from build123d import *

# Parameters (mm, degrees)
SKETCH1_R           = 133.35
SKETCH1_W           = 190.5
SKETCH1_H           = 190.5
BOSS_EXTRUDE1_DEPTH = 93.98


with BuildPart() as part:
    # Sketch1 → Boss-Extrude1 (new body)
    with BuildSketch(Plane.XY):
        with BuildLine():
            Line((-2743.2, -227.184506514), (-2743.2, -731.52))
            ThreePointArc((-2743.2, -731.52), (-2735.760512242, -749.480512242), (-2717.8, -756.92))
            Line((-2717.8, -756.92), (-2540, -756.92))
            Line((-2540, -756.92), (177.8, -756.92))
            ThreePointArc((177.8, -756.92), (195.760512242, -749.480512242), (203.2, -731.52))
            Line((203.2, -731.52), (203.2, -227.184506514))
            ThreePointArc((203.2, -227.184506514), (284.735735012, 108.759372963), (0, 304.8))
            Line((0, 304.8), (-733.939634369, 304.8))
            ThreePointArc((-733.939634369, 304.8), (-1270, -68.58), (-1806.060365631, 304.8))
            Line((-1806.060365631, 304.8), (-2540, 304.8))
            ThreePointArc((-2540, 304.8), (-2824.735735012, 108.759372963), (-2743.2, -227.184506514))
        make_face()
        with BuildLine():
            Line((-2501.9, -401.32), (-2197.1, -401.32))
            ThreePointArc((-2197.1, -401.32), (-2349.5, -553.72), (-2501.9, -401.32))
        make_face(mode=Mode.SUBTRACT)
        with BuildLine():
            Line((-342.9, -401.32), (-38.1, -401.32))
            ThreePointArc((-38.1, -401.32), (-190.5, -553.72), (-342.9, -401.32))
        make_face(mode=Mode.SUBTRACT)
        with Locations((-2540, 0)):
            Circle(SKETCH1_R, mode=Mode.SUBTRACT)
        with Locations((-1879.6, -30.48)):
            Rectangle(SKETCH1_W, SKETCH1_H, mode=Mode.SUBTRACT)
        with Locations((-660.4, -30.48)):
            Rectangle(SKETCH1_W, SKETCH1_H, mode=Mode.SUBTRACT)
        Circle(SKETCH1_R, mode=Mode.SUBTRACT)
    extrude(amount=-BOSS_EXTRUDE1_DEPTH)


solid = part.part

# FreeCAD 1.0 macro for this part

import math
import FreeCAD as App
import Part
import Sketcher
from FreeCAD import Vector
Q = App.Units.Quantity


def add_polygon(sketch, points):
    """Adds a closed chain of lines whose ends are joined by coincident constraints."""
    first, n = sketch.GeometryCount, len(points)
    for a, b in zip(points, points[1:] + points[:1]):
        sketch.addGeometry(Part.LineSegment(App.Vector(*a, 0), App.Vector(*b, 0)), False)
    for i in range(n):
        sketch.addConstraint(Sketcher.Constraint("Coincident", first + i, 2, first + (i + 1) % n, 1))

doc = App.newDocument("Part")
params = doc.addObject("Spreadsheet::Sheet", "Params")
for row, (alias, value) in enumerate([
    ("sketch1_radius", "1 in"),
    ("sketch1_radius2", "12 in"),
    ("sketch1_radius3", "6 in"),
    ("sketch1_diameter", "10.5 in"),
    ("sketch1_radius4", "22.5 in"),
    ("pad1_length", "3.7 in"),
], start=1):
    params.set(f"A{row}", alias)
    params.set(f"B{row}", "=" + value)
    params.setAlias(f"B{row}", alias)

body = doc.addObject("PartDesign::Body", "Body")

sketch1 = body.newObject("Sketcher::SketchObject", "Sketch")
sketch1.AttachmentSupport = (doc.getObject("XY_Plane"), [""])
sketch1.MapMode = "FlatFace"
sketch1.addGeometry(Part.LineSegment(Vector(-2743.2, -227.184507, 0), Vector(-2743.2, -731.52, 0)), False)
sketch1.addGeometry(Part.ArcOfCircle(Part.Circle(Vector(-2717.8, -731.52, 0), Vector(0, 0, 1), 25.4), math.radians(180), math.radians(270)), False)
sketch1.addGeometry(Part.LineSegment(Vector(-2717.8, -756.92, 0), Vector(177.8, -756.92, 0)), False)
sketch1.addGeometry(Part.ArcOfCircle(Part.Circle(Vector(177.8, -731.52, 0), Vector(0, 0, 1), 25.4), math.radians(-90), math.radians(0)), False)
sketch1.addGeometry(Part.LineSegment(Vector(203.2, -731.52, 0), Vector(203.2, -227.184507, 0)), False)
sketch1.addGeometry(Part.ArcOfCircle(Part.Circle(Vector(0, 0, 0), Vector(0, 0, 1), 304.8), math.radians(-48.189685), math.radians(90)), False)
sketch1.addGeometry(Part.LineSegment(Vector(0, 304.8, 0), Vector(-733.939634, 304.8, 0)), False)
sketch1.addGeometry(Part.ArcOfCircle(Part.Circle(Vector(-1270, 502.92, 0), Vector(0, 0, 1), 571.5), math.radians(-159.716431), math.radians(-20.283569)), False)
sketch1.addGeometry(Part.LineSegment(Vector(-1806.060366, 304.8, 0), Vector(-2540, 304.8, 0)), False)
sketch1.addGeometry(Part.ArcOfCircle(Part.Circle(Vector(-2540, 0, 0), Vector(0, 0, 1), 304.8), math.radians(90), math.radians(228.189685)), False)
sketch1.addGeometry(Part.ArcOfCircle(Part.Circle(Vector(-2349.5, -401.32, 0), Vector(0, 0, 1), 152.4), math.radians(180), math.radians(360)), False)
sketch1.addGeometry(Part.LineSegment(Vector(-2501.9, -401.32, 0), Vector(-2197.1, -401.32, 0)), False)
sketch1.addGeometry(Part.ArcOfCircle(Part.Circle(Vector(-190.5, -401.32, 0), Vector(0, 0, 1), 152.4), math.radians(180), math.radians(360)), False)
sketch1.addGeometry(Part.LineSegment(Vector(-342.9, -401.32, 0), Vector(-38.1, -401.32, 0)), False)
sketch1.addGeometry(Part.Circle(Vector(-2540, 0, 0), Vector(0, 0, 1), 133.35), False)
add_polygon(sketch1, [(-1784.35, -125.73), (-1974.85, -125.73), (-1974.85, 64.77), (-1784.35, 64.77)])
add_polygon(sketch1, [(-565.15, -125.73), (-755.65, -125.73), (-755.65, 64.77), (-565.15, 64.77)])
sketch1.addGeometry(Part.Circle(Vector(0, 0, 0), Vector(0, 0, 1), 133.35), False)
sketch1.addConstraint(Sketcher.Constraint("Tangent", 0, 2, 1, 1))
sketch1.addConstraint(Sketcher.Constraint("Tangent", 1, 2, 2, 1))
sketch1.addConstraint(Sketcher.Constraint("Tangent", 2, 2, 3, 1))
sketch1.addConstraint(Sketcher.Constraint("Tangent", 3, 2, 4, 1))
sketch1.addConstraint(Sketcher.Constraint("Coincident", 4, 2, 5, 1))
sketch1.addConstraint(Sketcher.Constraint("Tangent", 5, 2, 6, 1))
sketch1.addConstraint(Sketcher.Constraint("Coincident", 6, 2, 7, 2))
sketch1.addConstraint(Sketcher.Constraint("Coincident", 7, 1, 8, 1))
sketch1.addConstraint(Sketcher.Constraint("Tangent", 8, 2, 9, 1))
sketch1.addConstraint(Sketcher.Constraint("Coincident", 9, 2, 0, 1))
sketch1.addConstraint(Sketcher.Constraint("Coincident", 10, 1, 11, 1))
sketch1.addConstraint(Sketcher.Constraint("Coincident", 11, 2, 10, 2))
sketch1.addConstraint(Sketcher.Constraint("Coincident", 12, 1, 13, 1))
sketch1.addConstraint(Sketcher.Constraint("Coincident", 13, 2, 12, 2))
sketch1.addConstraint(Sketcher.Constraint("Vertical", 0))
sketch1.addConstraint(Sketcher.Constraint("Horizontal", 2))
sketch1.addConstraint(Sketcher.Constraint("Vertical", 4))
sketch1.addConstraint(Sketcher.Constraint("Horizontal", 6))
sketch1.addConstraint(Sketcher.Constraint("Horizontal", 8))
sketch1.addConstraint(Sketcher.Constraint("Horizontal", 11))
sketch1.addConstraint(Sketcher.Constraint("Horizontal", 13))
sketch1.addConstraint(Sketcher.Constraint("Horizontal", 15))
sketch1.addConstraint(Sketcher.Constraint("Vertical", 16))
sketch1.addConstraint(Sketcher.Constraint("Horizontal", 17))
sketch1.addConstraint(Sketcher.Constraint("Vertical", 18))
sketch1.addConstraint(Sketcher.Constraint("Horizontal", 19))
sketch1.addConstraint(Sketcher.Constraint("Vertical", 20))
sketch1.addConstraint(Sketcher.Constraint("Horizontal", 21))
sketch1.addConstraint(Sketcher.Constraint("Vertical", 22))
sketch1.addConstraint(Sketcher.Constraint("Coincident", 5, 3, -1, 1))
sketch1.addConstraint(Sketcher.Constraint("Coincident", 23, 3, -1, 1))
sketch1.addConstraint(Sketcher.Constraint("Coincident", 14, 3, 9, 3))
sketch1.addConstraint(Sketcher.Constraint("Equal", 1, 3))
sketch1.addConstraint(Sketcher.Constraint("Equal", 5, 9))
sketch1.addConstraint(Sketcher.Constraint("Equal", 10, 12))
sketch1.addConstraint(Sketcher.Constraint("Equal", 14, 23))
sketch1.addConstraint(Sketcher.Constraint("PointOnObject", 9, 3, -1))
sketch1.addConstraint(Sketcher.Constraint("Horizontal", 10, 3, 12, 3))
sketch1.addConstraint(Sketcher.Constraint("Horizontal", 4, 2, 9, 2))
sketch1.addConstraint(Sketcher.Constraint("Horizontal", 12, 3, 10, 1))
sketch1.addConstraint(Sketcher.Constraint("Horizontal", 11, 2, 12, 1))
sketch1.addConstraint(Sketcher.Constraint("Horizontal", 18, 2, 19, 2))
sketch1.addConstraint(Sketcher.Constraint("Horizontal", 17, 2, 20, 2))
sketch1.addConstraint(Sketcher.Constraint("Equal", 6, 8))
sketch1.addConstraint(Sketcher.Constraint("Equal", 17, 19))
sketch1.addConstraint(Sketcher.Constraint("Equal", 21, 16))
sketch1.addConstraint(Sketcher.Constraint("Radius", 1, Q("1 in")))
sketch1.addConstraint(Sketcher.Constraint("Radius", 5, Q("12 in")))
sketch1.addConstraint(Sketcher.Constraint("Radius", 10, Q("6 in")))
sketch1.addConstraint(Sketcher.Constraint("Diameter", 14, Q("10.5 in")))
sketch1.addConstraint(Sketcher.Constraint("Radius", 7, Q("22.5 in")))
sketch1.addConstraint(Sketcher.Constraint("DistanceX", 2, 1, 2, 2, Q("114 in")))
sketch1.addConstraint(Sketcher.Constraint("DistanceX", 15, 2, 15, 1, Q("7.5 in")))
sketch1.addConstraint(Sketcher.Constraint("DistanceX", 1, 3, -1, 1, Q("107 in")))
sketch1.addConstraint(Sketcher.Constraint("DistanceY", 1, 3, 10, 3, Q("13 in")))
sketch1.addConstraint(Sketcher.Constraint("DistanceX", 10, 3, 12, 3, Q("85 in")))
sketch1.addConstraint(Sketcher.Constraint("DistanceY", 1, 3, -1, 1, Q("28.8 in")))
sketch1.addConstraint(Sketcher.Constraint("DistanceY", -1, 1, 7, 3, Q("19.8 in")))
sketch1.addConstraint(Sketcher.Constraint("DistanceX", 10, 3, -1, 1, Q("92.5 in")))
sketch1.addConstraint(Sketcher.Constraint("DistanceX", 15, 2, -1, 1, Q("77.75 in")))
sketch1.addConstraint(Sketcher.Constraint("DistanceY", 15, 2, -1, 1, Q("4.95 in")))
sketch1.addConstraint(Sketcher.Constraint("DistanceX", 19, 2, -1, 1, Q("29.75 in")))
sketch1.setExpression("Constraints[54]", "Params.sketch1_radius")
sketch1.setExpression("Constraints[55]", "Params.sketch1_radius2")
sketch1.setExpression("Constraints[56]", "Params.sketch1_radius3")
sketch1.setExpression("Constraints[57]", "Params.sketch1_diameter")
sketch1.setExpression("Constraints[58]", "Params.sketch1_radius4")
pad1 = body.newObject("PartDesign::Pad", "Pad")
pad1.Profile = sketch1
pad1.setExpression("Length", "Params.pad1_length")
pad1.Reversed = True

doc.recompute()
